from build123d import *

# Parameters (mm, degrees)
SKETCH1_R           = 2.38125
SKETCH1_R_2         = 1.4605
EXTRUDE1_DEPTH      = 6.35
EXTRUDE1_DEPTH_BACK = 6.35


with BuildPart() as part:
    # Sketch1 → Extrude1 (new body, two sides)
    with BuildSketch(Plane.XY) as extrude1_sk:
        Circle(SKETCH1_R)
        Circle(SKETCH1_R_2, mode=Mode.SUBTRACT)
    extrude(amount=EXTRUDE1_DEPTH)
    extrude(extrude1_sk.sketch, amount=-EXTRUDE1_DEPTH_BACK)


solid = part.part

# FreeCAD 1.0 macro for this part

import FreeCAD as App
import Part
import Sketcher

V = App.Vector
Q = App.Units.Quantity

doc = App.newDocument("Part")
params = doc.addObject("Spreadsheet::Sheet", "Params")
for row, (alias, value) in enumerate([
    ("sketch1_diameter", "0.1875 in"),
    ("sketch1_diameter2", "0.115 in"),
    ("pad1_length", "0.25 in"),
    ("pad1_length2", "0.25 in"),
], start=1):
    params.set(f"A{row}", alias)
    params.set(f"B{row}", "=" + value)
    params.setAlias(f"B{row}", alias)

body = doc.addObject("PartDesign::Body", "Body")

# Sketch on XY plane
sketch1 = doc.addObject("Sketcher::SketchObject", "Sketch")
body.addObject(sketch1)
sketch1.AttachmentSupport = (doc.XY_Plane, [""])
sketch1.MapMode = "FlatFace"
sketch1.addGeometry([
    Part.Circle(V(0, 0, 0), V(0, 0, 1), 2.4),
    Part.Circle(V(0, 0, 0), V(0, 0, 1), 1.5),
], False)
sketch1.addConstraint([
    Sketcher.Constraint("Coincident", 0, 3, -1, 1),
    Sketcher.Constraint("Coincident", 1, 3, -1, 1),
    Sketcher.Constraint("Diameter", 0, Q("0.1875 in")),
    Sketcher.Constraint("Diameter", 1, Q("0.115 in")),
])
sketch1.setExpression("Constraints[2]", "Params.sketch1_diameter")
sketch1.setExpression("Constraints[3]", "Params.sketch1_diameter2")
pad1 = doc.addObject("PartDesign::Pad", "Pad")
body.addObject(pad1)
pad1.Profile = sketch1
pad1.Type = "TwoLengths"
pad1.setExpression("Length", "Params.pad1_length")
pad1.setExpression("Length2", "Params.pad1_length2")

doc.recompute()
